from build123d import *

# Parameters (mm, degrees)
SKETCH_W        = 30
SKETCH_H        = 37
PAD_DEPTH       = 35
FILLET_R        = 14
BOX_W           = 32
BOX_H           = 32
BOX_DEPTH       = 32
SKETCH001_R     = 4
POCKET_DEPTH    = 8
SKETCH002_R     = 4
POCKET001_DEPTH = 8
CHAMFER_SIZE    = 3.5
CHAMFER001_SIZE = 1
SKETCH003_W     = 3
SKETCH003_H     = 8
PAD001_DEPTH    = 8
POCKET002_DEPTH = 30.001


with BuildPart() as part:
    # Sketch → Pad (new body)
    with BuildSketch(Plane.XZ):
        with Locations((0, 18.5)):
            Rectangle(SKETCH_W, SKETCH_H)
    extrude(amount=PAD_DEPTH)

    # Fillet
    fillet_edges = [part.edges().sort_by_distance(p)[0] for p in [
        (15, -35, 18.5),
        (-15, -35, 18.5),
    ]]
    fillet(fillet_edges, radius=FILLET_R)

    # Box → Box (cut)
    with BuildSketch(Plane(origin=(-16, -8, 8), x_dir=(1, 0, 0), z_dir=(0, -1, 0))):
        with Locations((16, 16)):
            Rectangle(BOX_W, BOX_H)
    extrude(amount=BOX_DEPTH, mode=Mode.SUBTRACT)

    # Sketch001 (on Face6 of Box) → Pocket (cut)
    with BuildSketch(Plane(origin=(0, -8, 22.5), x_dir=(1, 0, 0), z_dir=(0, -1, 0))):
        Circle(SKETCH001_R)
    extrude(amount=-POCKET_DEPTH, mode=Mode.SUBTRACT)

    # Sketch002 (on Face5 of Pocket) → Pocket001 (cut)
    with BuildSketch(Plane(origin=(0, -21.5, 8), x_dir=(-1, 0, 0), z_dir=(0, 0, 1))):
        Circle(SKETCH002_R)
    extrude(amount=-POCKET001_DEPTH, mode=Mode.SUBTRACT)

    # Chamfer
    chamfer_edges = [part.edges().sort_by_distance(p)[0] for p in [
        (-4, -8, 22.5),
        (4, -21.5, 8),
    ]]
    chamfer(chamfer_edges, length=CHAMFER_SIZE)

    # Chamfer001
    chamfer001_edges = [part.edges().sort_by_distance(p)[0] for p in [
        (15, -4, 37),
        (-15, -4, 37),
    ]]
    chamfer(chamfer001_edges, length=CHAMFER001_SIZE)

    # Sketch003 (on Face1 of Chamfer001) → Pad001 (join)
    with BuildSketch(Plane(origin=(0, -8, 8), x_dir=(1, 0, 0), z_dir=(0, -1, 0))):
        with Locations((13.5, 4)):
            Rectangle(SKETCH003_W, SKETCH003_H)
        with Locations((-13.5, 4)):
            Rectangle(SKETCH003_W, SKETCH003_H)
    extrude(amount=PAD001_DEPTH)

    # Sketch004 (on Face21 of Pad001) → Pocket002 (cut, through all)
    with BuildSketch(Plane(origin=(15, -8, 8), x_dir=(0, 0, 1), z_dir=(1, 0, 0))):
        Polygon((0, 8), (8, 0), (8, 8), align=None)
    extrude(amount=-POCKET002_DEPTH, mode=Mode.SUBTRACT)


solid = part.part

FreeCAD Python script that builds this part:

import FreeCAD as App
import Part
import Sketcher
from FreeCAD import Vector


def edges_at(feature, points):
    """Names of the edges that pass closest to the given points."""
    edges = feature.Shape.Edges
    near = lambda p: min(range(len(edges)), key=lambda i: edges[i].distToShape(Part.Vertex(*p))[0])
    return sorted({f"Edge{near(p) + 1}" for p in points})

doc = App.newDocument("Part")
body = doc.addObject("PartDesign::Body", "Body")

sketch1 = doc.addObject("Sketcher::SketchObject", "Sketch")
body.addObject(sketch1)
sketch1.AttachmentSupport = (doc.XZ_Plane, [""])
sketch1.MapMode = "FlatFace"
sketch1.addGeometry([
    Part.LineSegment(Vector(-15, 37, 0), Vector(-15, 0, 0)),
    Part.LineSegment(Vector(-15, 0, 0), Vector(15, 0, 0)),
    Part.LineSegment(Vector(15, 0, 0), Vector(15, 37, 0)),
    Part.LineSegment(Vector(15, 37, 0), Vector(-15, 37, 0)),
], False)
sketch1.addConstraint([
    Sketcher.Constraint("Coincident", 0, 2, 1, 1),
    Sketcher.Constraint("Coincident", 1, 2, 2, 1),
    Sketcher.Constraint("Coincident", 2, 2, 3, 1),
    Sketcher.Constraint("Coincident", 3, 2, 0, 1),
    Sketcher.Constraint("Vertical", 0),
    Sketcher.Constraint("Horizontal", 1),
    Sketcher.Constraint("Vertical", 2),
    Sketcher.Constraint("Horizontal", 3),
    Sketcher.Constraint("Symmetric", 0, 2, 1, 2, -1, 1),
    Sketcher.Constraint("DistanceX", 1, 1, 1, 2, 30.0),
    Sketcher.Constraint("DistanceY", 0, 2, 0, 1, 37.0),
])
pad1 = doc.addObject("PartDesign::Pad", "Pad")
body.addObject(pad1)
pad1.Profile = sketch1
pad1.Length = 35
doc.recompute()

fillet = doc.addObject("PartDesign::Fillet", "Fillet")
body.addObject(fillet)
fillet.Base = (pad1, edges_at(pad1, [(15, -35, 18.5), (-15, -35, 18.5)]))
fillet.Radius = 14

sketch2 = doc.addObject("Sketcher::SketchObject", "Sketch001")
body.addObject(sketch2)
sketch2.AttachmentSupport = (doc.XZ_Plane, [""])
sketch2.MapMode = "FlatFace"
sketch2.AttachmentOffset = App.Placement(Vector(0, 0, 8), App.Rotation())
sketch2.addGeometry([
    Part.LineSegment(Vector(-16, 40, 0), Vector(-16, 8, 0)),
    Part.LineSegment(Vector(-16, 8, 0), Vector(16, 8, 0)),
    Part.LineSegment(Vector(16, 8, 0), Vector(16, 40, 0)),
    Part.LineSegment(Vector(16, 40, 0), Vector(-16, 40, 0)),
], False)
sketch2.addConstraint([
    Sketcher.Constraint("Coincident", 0, 2, 1, 1),
    Sketcher.Constraint("Coincident", 1, 2, 2, 1),
    Sketcher.Constraint("Coincident", 2, 2, 3, 1),
    Sketcher.Constraint("Coincident", 3, 2, 0, 1),
    Sketcher.Constraint("Vertical", 0),
    Sketcher.Constraint("Horizontal", 1),
    Sketcher.Constraint("Vertical", 2),
    Sketcher.Constraint("Horizontal", 3),
    Sketcher.Constraint("Equal", 3, 0),
    Sketcher.Constraint("DistanceX", 1, 1, 1, 2, 32.0),
    Sketcher.Constraint("DistanceX", 0, 2, -1, 1, 16.0),
    Sketcher.Constraint("DistanceY", -1, 1, 0, 2, 8.0),
])
pocket1 = doc.addObject("PartDesign::Pocket", "Pocket")
body.addObject(pocket1)
pocket1.Profile = sketch2
pocket1.Length = 32
pocket1.Reversed = True

sketch3 = doc.addObject("Sketcher::SketchObject", "Sketch002")
body.addObject(sketch3)
sketch3.AttachmentSupport = (doc.XZ_Plane, [""])
sketch3.MapMode = "FlatFace"
sketch3.AttachmentOffset = App.Placement(Vector(0, 0, 8), App.Rotation())
sketch3.addGeometry(Part.Circle(Vector(0, 22.5, 0), Vector(0, 0, 1), 4), False)
sketch3.addConstraint([
    Sketcher.Constraint("PointOnObject", 0, 3, -2),
    Sketcher.Constraint("Diameter", 0, 8.0),
    Sketcher.Constraint("DistanceY", -1, 1, 0, 3, 22.5),
])
pocket2 = doc.addObject("PartDesign::Pocket", "Pocket001")
body.addObject(pocket2)
pocket2.Profile = sketch3
pocket2.Length = 8

sketch4 = doc.addObject("Sketcher::SketchObject", "Sketch003")
body.addObject(sketch4)
sketch4.AttachmentSupport = (doc.XY_Plane, [""])
sketch4.MapMode = "FlatFace"
sketch4.AttachmentOffset = App.Placement(Vector(0, 0, 8), App.Rotation())
sketch4.addGeometry(Part.Circle(Vector(0, -21.5, 0), Vector(0, 0, 1), 4), False)
sketch4.addConstraint([
    Sketcher.Constraint("PointOnObject", 0, 3, -2),
    Sketcher.Constraint("Diameter", 0, 8.0),
    Sketcher.Constraint("DistanceY", 0, 3, -1, 1, 21.5),
])
pocket3 = doc.addObject("PartDesign::Pocket", "Pocket002")
body.addObject(pocket3)
pocket3.Profile = sketch4
pocket3.Length = 8
doc.recompute()

chamfer = doc.addObject("PartDesign::Chamfer", "Chamfer")
body.addObject(chamfer)
chamfer.Base = (pocket3, edges_at(pocket3, [(-4, -8, 22.5), (4, -21.5, 8)]))
chamfer.Size = 3.5
doc.recompute()

chamfer2 = doc.addObject("PartDesign::Chamfer", "Chamfer001")
body.addObject(chamfer2)
chamfer2.Base = (chamfer, edges_at(chamfer, [(15, -4, 37), (-15, -4, 37)]))
chamfer2.Size = 1

sketch5 = doc.addObject("Sketcher::SketchObject", "Sketch004")
body.addObject(sketch5)
sketch5.AttachmentSupport = (doc.XZ_Plane, [""])
sketch5.MapMode = "FlatFace"
sketch5.AttachmentOffset = App.Placement(Vector(0, 0, 8), App.Rotation())
sketch5.addGeometry([
    Part.LineSegment(Vector(12, 16, 0), Vector(12, 8, 0)),
    Part.LineSegment(Vector(12, 8, 0), Vector(15, 8, 0)),
    Part.LineSegment(Vector(15, 8, 0), Vector(15, 16, 0)),
    Part.LineSegment(Vector(15, 16, 0), Vector(12, 16, 0)),
    Part.LineSegment(Vector(-15, 16, 0), Vector(-15, 8, 0)),
    Part.LineSegment(Vector(-15, 8, 0), Vector(-12, 8, 0)),
    Part.LineSegment(Vector(-12, 8, 0), Vector(-12, 16, 0)),
    Part.LineSegment(Vector(-12, 16, 0), Vector(-15, 16, 0)),
], False)
sketch5.addConstraint([
    Sketcher.Constraint("Coincident", 0, 2, 1, 1),
    Sketcher.Constraint("Coincident", 1, 2, 2, 1),
    Sketcher.Constraint("Coincident", 2, 2, 3, 1),
    Sketcher.Constraint("Coincident", 3, 2, 0, 1),
    Sketcher.Constraint("Coincident", 4, 2, 5, 1),
    Sketcher.Constraint("Coincident", 5, 2, 6, 1),
    Sketcher.Constraint("Coincident", 6, 2, 7, 1),
    Sketcher.Constraint("Coincident", 7, 2, 4, 1),
    Sketcher.Constraint("Vertical", 0),
    Sketcher.Constraint("Horizontal", 1),
    Sketcher.Constraint("Vertical", 2),
    Sketcher.Constraint("Horizontal", 3),
    Sketcher.Constraint("Vertical", 4),
    Sketcher.Constraint("Horizontal", 5),
    Sketcher.Constraint("Vertical", 6),
    Sketcher.Constraint("Horizontal", 7),
    Sketcher.Constraint("Symmetric", 1, 2, 4, 2, -2),
    Sketcher.Constraint("Symmetric", 3, 2, 6, 2, -2),
    Sketcher.Constraint("DistanceX", 1, 1, 1, 2, 3.0),
    Sketcher.Constraint("DistanceY", 0, 2, 0, 1, 8.0),
    Sketcher.Constraint("DistanceX", -1, 1, 0, 2, 12.0),
    Sketcher.Constraint("DistanceY", -1, 1, 0, 2, 8.0),
])
pad2 = doc.addObject("PartDesign::Pad", "Pad001")
body.addObject(pad2)
pad2.Profile = sketch5
pad2.Length = 8

sketch6 = doc.addObject("Sketcher::SketchObject", "Sketch005")
body.addObject(sketch6)
sketch6.AttachmentSupport = (doc.YZ_Plane, [""])
sketch6.MapMode = "FlatFace"
sketch6.AttachmentOffset = App.Placement(Vector(0, 0, 15), App.Rotation())
sketch6.addGeometry([
    Part.LineSegment(Vector(-16, 8, 0), Vector(-8, 16, 0)),
    Part.LineSegment(Vector(-8, 16, 0), Vector(-16, 16, 0)),
    Part.LineSegment(Vector(-16, 16, 0), Vector(-16, 8, 0)),
], False)
sketch6.addConstraint([
    Sketcher.Constraint("Coincident", 0, 2, 1, 1),
    Sketcher.Constraint("Coincident", 1, 2, 2, 1),
    Sketcher.Constraint("Coincident", 2, 2, 0, 1),
    Sketcher.Constraint("Horizontal", 1),
    Sketcher.Constraint("Vertical", 2),
    Sketcher.Constraint("Equal", 1, 2),
    Sketcher.Constraint("DistanceX", 1, 2, 1, 1, 8.0),
    Sketcher.Constraint("DistanceX", 0, 2, -1, 1, 8.0),
    Sketcher.Constraint("DistanceY", -1, 1, 0, 2, 16.0),
])
pocket4 = doc.addObject("PartDesign::Pocket", "Pocket003")
body.addObject(pocket4)
pocket4.Profile = sketch6
pocket4.Type = "ThroughAll"

doc.recompute()
